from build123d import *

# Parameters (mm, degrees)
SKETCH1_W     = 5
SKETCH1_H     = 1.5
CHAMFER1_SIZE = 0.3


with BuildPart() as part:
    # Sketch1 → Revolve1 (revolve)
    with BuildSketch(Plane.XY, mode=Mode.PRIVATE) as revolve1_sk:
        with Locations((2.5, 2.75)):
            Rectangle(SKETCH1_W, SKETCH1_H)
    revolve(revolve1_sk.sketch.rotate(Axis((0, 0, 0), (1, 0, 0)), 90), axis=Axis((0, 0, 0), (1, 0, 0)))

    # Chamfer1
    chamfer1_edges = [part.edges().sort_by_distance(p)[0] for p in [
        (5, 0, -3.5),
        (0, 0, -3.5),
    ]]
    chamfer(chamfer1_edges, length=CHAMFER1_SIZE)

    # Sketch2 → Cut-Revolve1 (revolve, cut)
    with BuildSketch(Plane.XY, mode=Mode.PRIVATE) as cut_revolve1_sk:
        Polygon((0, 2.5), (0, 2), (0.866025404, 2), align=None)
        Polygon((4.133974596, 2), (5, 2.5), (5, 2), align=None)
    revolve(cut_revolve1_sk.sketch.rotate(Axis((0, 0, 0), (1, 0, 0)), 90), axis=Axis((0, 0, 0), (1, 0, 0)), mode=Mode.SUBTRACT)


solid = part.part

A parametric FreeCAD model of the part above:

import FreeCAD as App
import Part
import Sketcher
from FreeCAD import Vector
Q = App.Units.Quantity


def edges_at(feature, points):
    """Names of the edges that pass closest to the given points."""
    edges = feature.Shape.Edges
    near = lambda p: min(range(len(edges)), key=lambda i: edges[i].distToShape(Part.Vertex(*p))[0])
    return sorted({f"Edge{near(p) + 1}" for p in points})


def add_polygon(sketch, points):
    """Adds a closed chain of lines whose ends are joined by coincident constraints."""
    first, n = sketch.GeometryCount, len(points)
    for a, b in zip(points, points[1:] + points[:1]):
        sketch.addGeometry(Part.LineSegment(App.Vector(*a, 0), App.Vector(*b, 0)), False)
    for i in range(n):
        sketch.addConstraint(Sketcher.Constraint("Coincident", first + i, 2, first + (i + 1) % n, 1))

doc = App.newDocument("Part")
body = doc.addObject("PartDesign::Body", "Body")

sketch1 = body.newObject("Sketcher::SketchObject", "Sketch")
sketch1.AttachmentSupport = (doc.getObject("XY_Plane"), [""])
sketch1.MapMode = "FlatFace"
add_polygon(sketch1, [(0, 3.5), (0, 2), (5, 2), (5, 3.5)])
sketch1.addConstraint([
    Sketcher.Constraint("Vertical", 0),
    Sketcher.Constraint("Horizontal", 1),
    Sketcher.Constraint("Vertical", 2),
    Sketcher.Constraint("Horizontal", 3),
    Sketcher.Constraint("PointOnObject", 0, 2, -2),
    Sketcher.Constraint("DistanceX", 1, 1, 1, 2, Q("5 mm")),
    Sketcher.Constraint("DistanceY", 0, 2, 0, 1, Q("1.5 mm")),
    Sketcher.Constraint("DistanceY", -1, 1, 0, 2, Q("2 mm")),
])
revolution = body.newObject("PartDesign::Revolution", "Revolution")
revolution.Profile = sketch1
revolution.ReferenceAxis = (sketch1, ["H_Axis"])
revolution.Angle = 360
doc.recompute()

chamfer = body.newObject("PartDesign::Chamfer", "Chamfer")
chamfer.Base = (revolution, edges_at(revolution, [(5, 0, -3.5), (0, 0, -3.5)]))
chamfer.Size = 0.3

sketch2 = body.newObject("Sketcher::SketchObject", "Sketch001")
sketch2.AttachmentSupport = (doc.getObject("XY_Plane"), [""])
sketch2.MapMode = "FlatFace"
add_polygon(sketch2, [(0, 2.5), (0, 2), (0.9, 2)])
add_polygon(sketch2, [(5, 2.5), (4.1, 2), (5, 2)])
sketch2.addConstraint([
    Sketcher.Constraint("Vertical", 0),
    Sketcher.Constraint("Horizontal", 1),
    Sketcher.Constraint("Horizontal", 4),
    Sketcher.Constraint("Vertical", 5),
    Sketcher.Constraint("PointOnObject", 0, 2, -2),
    Sketcher.Constraint("Horizontal", 1, 2, 3, 2),
    Sketcher.Constraint("Horizontal", 2, 2, 5, 2),
    Sketcher.Constraint("Equal", 1, 4),
    Sketcher.Constraint("Angle", 2, Q("150 deg")),
    Sketcher.Constraint("Distance", 2, Q("1 mm")),
    Sketcher.Constraint("DistanceY", -1, 1, 0, 2, Q("2 mm")),
    Sketcher.Constraint("DistanceX", -1, 1, 4, 2, Q("5 mm")),
])
groove = body.newObject("PartDesign::Groove", "Groove")
groove.Profile = sketch2
groove.ReferenceAxis = (sketch2, ["H_Axis"])
groove.Angle = 360

doc.recompute()
